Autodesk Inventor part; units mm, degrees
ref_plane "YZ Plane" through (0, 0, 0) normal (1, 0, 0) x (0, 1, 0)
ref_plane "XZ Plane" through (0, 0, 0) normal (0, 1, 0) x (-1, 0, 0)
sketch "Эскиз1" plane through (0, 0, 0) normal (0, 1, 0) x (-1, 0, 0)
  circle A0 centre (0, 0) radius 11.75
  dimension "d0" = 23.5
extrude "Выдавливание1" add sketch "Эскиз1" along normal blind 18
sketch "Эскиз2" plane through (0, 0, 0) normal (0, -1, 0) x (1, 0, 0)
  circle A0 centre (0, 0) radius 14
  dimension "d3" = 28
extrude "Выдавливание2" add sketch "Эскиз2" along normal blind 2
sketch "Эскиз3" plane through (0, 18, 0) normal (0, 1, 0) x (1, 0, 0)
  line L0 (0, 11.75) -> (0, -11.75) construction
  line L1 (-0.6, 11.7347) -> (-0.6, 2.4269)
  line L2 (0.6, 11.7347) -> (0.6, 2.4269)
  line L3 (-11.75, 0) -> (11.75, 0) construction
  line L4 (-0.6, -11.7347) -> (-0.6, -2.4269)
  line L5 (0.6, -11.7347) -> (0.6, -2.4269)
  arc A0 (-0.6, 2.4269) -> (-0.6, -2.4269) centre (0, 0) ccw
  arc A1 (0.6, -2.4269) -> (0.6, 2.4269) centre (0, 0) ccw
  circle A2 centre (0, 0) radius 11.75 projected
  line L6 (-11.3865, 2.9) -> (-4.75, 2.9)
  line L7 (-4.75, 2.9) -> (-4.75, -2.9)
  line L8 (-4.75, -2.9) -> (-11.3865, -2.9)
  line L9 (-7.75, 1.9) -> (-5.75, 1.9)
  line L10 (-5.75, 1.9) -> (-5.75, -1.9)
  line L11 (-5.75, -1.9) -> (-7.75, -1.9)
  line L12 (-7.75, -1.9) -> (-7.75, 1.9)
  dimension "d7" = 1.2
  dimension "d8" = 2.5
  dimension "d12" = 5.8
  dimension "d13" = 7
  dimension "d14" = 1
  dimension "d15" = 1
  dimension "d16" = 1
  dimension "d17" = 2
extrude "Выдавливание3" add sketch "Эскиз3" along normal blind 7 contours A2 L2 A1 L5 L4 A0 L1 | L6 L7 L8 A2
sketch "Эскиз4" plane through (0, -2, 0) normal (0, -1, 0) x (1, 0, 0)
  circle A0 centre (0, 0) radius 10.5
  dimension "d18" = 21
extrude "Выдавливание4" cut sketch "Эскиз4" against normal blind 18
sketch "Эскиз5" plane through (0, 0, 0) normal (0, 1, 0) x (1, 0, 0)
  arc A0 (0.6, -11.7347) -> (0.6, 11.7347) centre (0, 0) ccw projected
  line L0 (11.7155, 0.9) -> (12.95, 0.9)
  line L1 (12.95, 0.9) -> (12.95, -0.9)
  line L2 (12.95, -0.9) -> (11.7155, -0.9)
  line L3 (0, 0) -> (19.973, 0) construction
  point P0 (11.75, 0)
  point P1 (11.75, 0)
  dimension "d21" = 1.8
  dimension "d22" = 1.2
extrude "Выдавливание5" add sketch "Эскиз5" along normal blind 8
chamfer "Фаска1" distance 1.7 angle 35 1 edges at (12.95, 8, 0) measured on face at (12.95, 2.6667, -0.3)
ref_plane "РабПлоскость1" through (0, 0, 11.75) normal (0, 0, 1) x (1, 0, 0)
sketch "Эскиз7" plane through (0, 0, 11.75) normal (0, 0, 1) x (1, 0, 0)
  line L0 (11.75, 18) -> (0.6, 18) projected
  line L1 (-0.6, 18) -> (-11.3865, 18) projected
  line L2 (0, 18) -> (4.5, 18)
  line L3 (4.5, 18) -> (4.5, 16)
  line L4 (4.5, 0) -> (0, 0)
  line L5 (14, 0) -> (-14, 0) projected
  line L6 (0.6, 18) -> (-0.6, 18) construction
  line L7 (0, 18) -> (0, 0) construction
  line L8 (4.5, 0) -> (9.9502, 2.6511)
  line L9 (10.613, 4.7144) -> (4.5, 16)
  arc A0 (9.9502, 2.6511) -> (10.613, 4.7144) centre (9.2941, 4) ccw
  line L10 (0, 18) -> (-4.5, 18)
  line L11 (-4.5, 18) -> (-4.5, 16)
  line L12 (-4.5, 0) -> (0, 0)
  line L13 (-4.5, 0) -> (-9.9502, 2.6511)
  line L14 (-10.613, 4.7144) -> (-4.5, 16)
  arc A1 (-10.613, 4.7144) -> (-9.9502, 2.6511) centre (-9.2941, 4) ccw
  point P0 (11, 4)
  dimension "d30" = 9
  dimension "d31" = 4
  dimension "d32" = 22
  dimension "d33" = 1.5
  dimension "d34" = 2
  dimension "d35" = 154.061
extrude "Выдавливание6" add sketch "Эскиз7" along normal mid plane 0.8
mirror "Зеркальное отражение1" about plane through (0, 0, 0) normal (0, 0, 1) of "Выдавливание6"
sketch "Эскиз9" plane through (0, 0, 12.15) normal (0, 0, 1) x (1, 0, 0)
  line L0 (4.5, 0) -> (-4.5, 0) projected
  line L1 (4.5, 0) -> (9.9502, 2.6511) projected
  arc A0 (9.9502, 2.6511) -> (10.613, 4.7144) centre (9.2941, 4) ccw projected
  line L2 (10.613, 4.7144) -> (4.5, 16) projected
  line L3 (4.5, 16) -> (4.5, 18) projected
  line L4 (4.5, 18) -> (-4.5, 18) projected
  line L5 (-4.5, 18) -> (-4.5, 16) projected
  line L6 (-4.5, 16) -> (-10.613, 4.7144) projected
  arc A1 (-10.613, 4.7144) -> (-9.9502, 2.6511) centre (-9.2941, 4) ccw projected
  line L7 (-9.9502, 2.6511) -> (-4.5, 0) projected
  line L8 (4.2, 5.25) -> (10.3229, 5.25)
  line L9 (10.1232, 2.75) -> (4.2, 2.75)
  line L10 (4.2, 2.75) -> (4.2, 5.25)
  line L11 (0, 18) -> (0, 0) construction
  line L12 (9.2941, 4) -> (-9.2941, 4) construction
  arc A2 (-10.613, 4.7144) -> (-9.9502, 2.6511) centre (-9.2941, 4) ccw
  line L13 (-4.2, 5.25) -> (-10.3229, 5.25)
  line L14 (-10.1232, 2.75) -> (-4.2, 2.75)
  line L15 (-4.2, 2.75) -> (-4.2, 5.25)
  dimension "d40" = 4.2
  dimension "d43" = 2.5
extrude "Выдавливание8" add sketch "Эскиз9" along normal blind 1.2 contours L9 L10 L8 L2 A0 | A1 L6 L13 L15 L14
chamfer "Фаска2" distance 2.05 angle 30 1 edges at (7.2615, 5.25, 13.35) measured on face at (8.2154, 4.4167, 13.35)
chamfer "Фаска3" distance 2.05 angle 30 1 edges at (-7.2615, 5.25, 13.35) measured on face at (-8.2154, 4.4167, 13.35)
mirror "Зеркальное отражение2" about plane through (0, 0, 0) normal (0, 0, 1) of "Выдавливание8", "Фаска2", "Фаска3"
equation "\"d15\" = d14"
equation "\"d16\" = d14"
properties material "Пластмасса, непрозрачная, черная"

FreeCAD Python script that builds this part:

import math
import FreeCAD as App
import Part
import Sketcher

V = App.Vector
Q = App.Units.Quantity


def edges_at(feature, points):
    """Names of the edges that pass closest to the given points."""
    edges = feature.Shape.Edges
    near = lambda p: min(range(len(edges)), key=lambda i: edges[i].distToShape(Part.Vertex(*p))[0])
    return sorted({f"Edge{near(p) + 1}" for p in points})


def add_polygon(sketch, points):
    """Adds a closed chain of lines whose ends are joined by coincident constraints."""
    first, n = sketch.GeometryCount, len(points)
    for a, b in zip(points, points[1:] + points[:1]):
        sketch.addGeometry(Part.LineSegment(App.Vector(*a, 0), App.Vector(*b, 0)), False)
    for i in range(n):
        sketch.addConstraint(Sketcher.Constraint("Coincident", first + i, 2, first + (i + 1) % n, 1))

doc = App.newDocument("Part")
body = doc.addObject("PartDesign::Body", "Body")

sketch1 = body.newObject("Sketcher::SketchObject", "Sketch")
sketch1.AttachmentSupport = (doc.getObject("XZ_Plane"), [""])
sketch1.MapMode = "FlatFace"
sketch1.addGeometry(Part.Circle(V(0, 0, 0), V(0, 0, 1), 12), False)
sketch1.addConstraint(Sketcher.Constraint("Coincident", 0, 3, -1, 1))
sketch1.addConstraint(Sketcher.Constraint("Diameter", 0, 23.5))
pad1 = body.newObject("PartDesign::Pad", "Pad")
pad1.Profile = sketch1
pad1.Length = 18
pad1.Reversed = True

sketch2 = body.newObject("Sketcher::SketchObject", "Sketch001")
sketch2.AttachmentSupport = (doc.getObject("XZ_Plane"), [""])
sketch2.MapMode = "FlatFace"
sketch2.addGeometry(Part.Circle(V(0, 0, 0), V(0, 0, 1), 14), False)
sketch2.addConstraint(Sketcher.Constraint("Coincident", 0, 3, -1, 1))
sketch2.addConstraint(Sketcher.Constraint("Diameter", 0, 28.0))
pad2 = body.newObject("PartDesign::Pad", "Pad001")
pad2.Profile = sketch2
pad2.Length = 2

sketch3 = body.newObject("Sketcher::SketchObject", "Sketch002")
sketch3.AttachmentSupport = (doc.getObject("XZ_Plane"), [""])
sketch3.MapMode = "FlatFace"
sketch3.AttachmentOffset = App.Placement(V(0, 0, -18), App.Rotation())
sketch3.addGeometry(Part.ArcOfCircle(Part.Circle(V(0, 0, 0), V(0, 0, 1), 11.8), math.radians(-92.93), math.radians(-87.07)), False)
sketch3.addGeometry(Part.LineSegment(V(-0.6, -11.7, 0), V(-0.6, -2.4, 0)), False)
sketch3.addGeometry(Part.ArcOfCircle(Part.Circle(V(0, 0, 0), V(0, 0, 1), 2.5), math.radians(104), math.radians(256)), False)
sketch3.addGeometry(Part.LineSegment(V(-0.6, 2.4, 0), V(-0.6, 11.7, 0)), False)
sketch3.addGeometry(Part.ArcOfCircle(Part.Circle(V(0, 0, 0), V(0, 0, 1), 11.8), math.radians(87.07), math.radians(92.93)), False)
sketch3.addGeometry(Part.LineSegment(V(0.6, 11.7, 0), V(0.6, 2.4, 0)), False)
sketch3.addGeometry(Part.ArcOfCircle(Part.Circle(V(0, 0, 0), V(0, 0, 1), 2.5), math.radians(-76), math.radians(76)), False)
sketch3.addGeometry(Part.LineSegment(V(0.6, -2.4, 0), V(0.6, -11.7, 0)), False)
sketch3.addGeometry(Part.LineSegment(V(-4.8, -2.9, 0), V(-11.4, -2.9, 0)), False)
sketch3.addGeometry(Part.ArcOfCircle(Part.Circle(V(0, 0, 0), V(0, 0, 1), 11.8), math.radians(166), math.radians(194)), False)
sketch3.addGeometry(Part.LineSegment(V(-11.4, 2.9, 0), V(-4.8, 2.9, 0)), False)
sketch3.addGeometry(Part.LineSegment(V(-4.8, 2.9, 0), V(-4.8, -2.9, 0)), False)
add_polygon(sketch3, [(-7.8, 1.9), (-7.8, -1.9), (-5.8, -1.9), (-5.8, 1.9)])
sketch3.addConstraint(Sketcher.Constraint("Coincident", 0, 1, 1, 1))
sketch3.addConstraint(Sketcher.Constraint("Coincident", 1, 2, 2, 2))
sketch3.addConstraint(Sketcher.Constraint("Coincident", 2, 1, 3, 1))
sketch3.addConstraint(Sketcher.Constraint("Coincident", 3, 2, 4, 2))
sketch3.addConstraint(Sketcher.Constraint("Coincident", 4, 1, 5, 1))
sketch3.addConstraint(Sketcher.Constraint("Coincident", 5, 2, 6, 2))
sketch3.addConstraint(Sketcher.Constraint("Coincident", 6, 1, 7, 1))
sketch3.addConstraint(Sketcher.Constraint("Coincident", 7, 2, 0, 2))
sketch3.addConstraint(Sketcher.Constraint("Coincident", 8, 2, 9, 2))
sketch3.addConstraint(Sketcher.Constraint("Coincident", 9, 1, 10, 1))
sketch3.addConstraint(Sketcher.Constraint("Coincident", 10, 2, 11, 1))
sketch3.addConstraint(Sketcher.Constraint("Coincident", 11, 2, 8, 1))
sketch3.addConstraint(Sketcher.Constraint("Vertical", 1))
sketch3.addConstraint(Sketcher.Constraint("Vertical", 3))
sketch3.addConstraint(Sketcher.Constraint("Vertical", 5))
sketch3.addConstraint(Sketcher.Constraint("Vertical", 7))
sketch3.addConstraint(Sketcher.Constraint("Horizontal", 8))
sketch3.addConstraint(Sketcher.Constraint("Horizontal", 10))
sketch3.addConstraint(Sketcher.Constraint("Vertical", 11))
sketch3.addConstraint(Sketcher.Constraint("Vertical", 12))
sketch3.addConstraint(Sketcher.Constraint("Horizontal", 13))
sketch3.addConstraint(Sketcher.Constraint("Vertical", 14))
sketch3.addConstraint(Sketcher.Constraint("Horizontal", 15))
sketch3.addConstraint(Sketcher.Constraint("Coincident", 0, 3, -1, 1))
sketch3.addConstraint(Sketcher.Constraint("Coincident", 2, 3, -1, 1))
sketch3.addConstraint(Sketcher.Constraint("Coincident", 4, 3, -1, 1))
sketch3.addConstraint(Sketcher.Constraint("Coincident", 6, 3, -1, 1))
sketch3.addConstraint(Sketcher.Constraint("Coincident", 9, 3, -1, 1))
sketch3.addConstraint(Sketcher.Constraint("Equal", 0, 4))
sketch3.addConstraint(Sketcher.Constraint("Equal", 2, 6))
sketch3.addConstraint(Sketcher.Constraint("Equal", 4, 9))
sketch3.addConstraint(Sketcher.Constraint("Horizontal", 3, 2, 4, 1))
sketch3.addConstraint(Sketcher.Constraint("Horizontal", 1, 2, 6, 1))
sketch3.addConstraint(Sketcher.Constraint("Vertical", 1, 2, 2, 1))
sketch3.addConstraint(Sketcher.Constraint("Vertical", 8, 2, 9, 1))
sketch3.addConstraint(Sketcher.Constraint("Radius", 2, 2.5))
sketch3.addConstraint(Sketcher.Constraint("DistanceX", 13, 1, 13, 2, 2.0))
sketch3.addConstraint(Sketcher.Constraint("DistanceY", 11, 2, 11, 1, 5.8))
sketch3.addConstraint(Sketcher.Constraint("DistanceY", 11, 2, 12, 2, 1.0))
sketch3.addConstraint(Sketcher.Constraint("DistanceX", 13, 2, 11, 2, 1.0))
sketch3.addConstraint(Sketcher.Constraint("DistanceY", 14, 2, 10, 2, 1.0))
sketch3.addConstraint(Sketcher.Constraint("DistanceX", 3, 2, 4, 1, 1.2))
sketch3.addConstraint(Sketcher.Constraint("Radius", 0, 11.75))
sketch3.addConstraint(Sketcher.Constraint("DistanceX", 10, 2, -1, 1, 4.75))
pad3 = body.newObject("PartDesign::Pad", "Pad002")
pad3.Profile = sketch3
pad3.Length = 7
pad3.Reversed = True

sketch4 = body.newObject("Sketcher::SketchObject", "Sketch003")
sketch4.AttachmentSupport = (doc.getObject("XZ_Plane"), [""])
sketch4.MapMode = "FlatFace"
sketch4.AttachmentOffset = App.Placement(V(0, 0, 2), App.Rotation())
sketch4.addGeometry(Part.Circle(V(0, 0, 0), V(0, 0, 1), 10), False)
sketch4.addConstraint(Sketcher.Constraint("Coincident", 0, 3, -1, 1))
sketch4.addConstraint(Sketcher.Constraint("Diameter", 0, 21.0))
pocket1 = body.newObject("PartDesign::Pocket", "Pocket")
pocket1.Profile = sketch4
pocket1.Length = 18

sketch5 = body.newObject("Sketcher::SketchObject", "Sketch004")
sketch5.AttachmentSupport = (doc.getObject("XZ_Plane"), [""])
sketch5.MapMode = "FlatFace"
sketch5.addGeometry(Part.ArcOfCircle(Part.Circle(V(0, 0, 0), V(0, 0, 1), 11.8), math.radians(-4.39), math.radians(4.39)), False)
sketch5.addGeometry(Part.LineSegment(V(11.7, 0.9, 0), V(12.9, 0.9, 0)), False)
sketch5.addGeometry(Part.LineSegment(V(12.9, 0.9, 0), V(12.9, -0.9, 0)), False)
sketch5.addGeometry(Part.LineSegment(V(12.9, -0.9, 0), V(11.7, -0.9, 0)), False)
sketch5.addConstraint(Sketcher.Constraint("Coincident", 0, 2, 1, 1))
sketch5.addConstraint(Sketcher.Constraint("Coincident", 1, 2, 2, 1))
sketch5.addConstraint(Sketcher.Constraint("Coincident", 2, 2, 3, 1))
sketch5.addConstraint(Sketcher.Constraint("Coincident", 3, 2, 0, 1))
sketch5.addConstraint(Sketcher.Constraint("Horizontal", 1))
sketch5.addConstraint(Sketcher.Constraint("Vertical", 2))
sketch5.addConstraint(Sketcher.Constraint("Horizontal", 3))
sketch5.addConstraint(Sketcher.Constraint("Coincident", 0, 3, -1, 1))
sketch5.addConstraint(Sketcher.Constraint("Vertical", 0, 2, 3, 2))
sketch5.addConstraint(Sketcher.Constraint("DistanceY", 2, 2, 2, 1, 1.8))
sketch5.addConstraint(Sketcher.Constraint("Radius", 0, 11.75))
sketch5.addConstraint(Sketcher.Constraint("DistanceX", -1, 1, 1, 2, 12.95))
pad4 = body.newObject("PartDesign::Pad", "Pad003")
pad4.Profile = sketch5
pad4.Length = 8
pad4.Reversed = True
doc.recompute()

chamfer = body.newObject("PartDesign::Chamfer", "Chamfer")
chamfer.Base = (pad4, edges_at(pad4, [(12.95, 8, 0)]))
chamfer.ChamferType = "Distance and Angle"
chamfer.Size = 1.7
chamfer.Angle = 35
chamfer.FlipDirection = True

sketch6 = body.newObject("Sketcher::SketchObject", "Sketch005")
sketch6.AttachmentSupport = (doc.getObject("XY_Plane"), [""])
sketch6.MapMode = "FlatFace"
sketch6.AttachmentOffset = App.Placement(V(0, 0, 11.75), App.Rotation())
sketch6.addGeometry(Part.LineSegment(V(4.5, 16, 0), V(4.5, 18, 0)), False)
sketch6.addGeometry(Part.LineSegment(V(4.5, 18, 0), V(-4.5, 18, 0)), False)
sketch6.addGeometry(Part.LineSegment(V(-4.5, 18, 0), V(-4.5, 16, 0)), False)
sketch6.addGeometry(Part.LineSegment(V(-4.5, 16, 0), V(-10.6, 4.7, 0)), False)
sketch6.addGeometry(Part.ArcOfCircle(Part.Circle(V(-9.3, 4, 0), V(0, 0, 1), 1.5), math.radians(152), math.radians(244)), False)
sketch6.addGeometry(Part.LineSegment(V(-10, 2.7, 0), V(-4.5, 0, 0)), False)
sketch6.addGeometry(Part.LineSegment(V(-4.5, 0, 0), V(4.5, 0, 0)), False)
sketch6.addGeometry(Part.LineSegment(V(4.5, 0, 0), V(10, 2.7, 0)), False)
sketch6.addGeometry(Part.ArcOfCircle(Part.Circle(V(9.3, 4, 0), V(0, 0, 1), 1.5), math.radians(-64), math.radians(28)), False)
sketch6.addGeometry(Part.LineSegment(V(10.6, 4.7, 0), V(4.5, 16, 0)), False)
sketch6.addConstraint(Sketcher.Constraint("Coincident", 0, 2, 1, 1))
sketch6.addConstraint(Sketcher.Constraint("Coincident", 1, 2, 2, 1))
sketch6.addConstraint(Sketcher.Constraint("Coincident", 2, 2, 3, 1))
sketch6.addConstraint(Sketcher.Constraint("Tangent", 3, 2, 4, 1))
sketch6.addConstraint(Sketcher.Constraint("Tangent", 4, 2, 5, 1))
sketch6.addConstraint(Sketcher.Constraint("Coincident", 5, 2, 6, 1))
sketch6.addConstraint(Sketcher.Constraint("Coincident", 6, 2, 7, 1))
sketch6.addConstraint(Sketcher.Constraint("Tangent", 7, 2, 8, 1))
sketch6.addConstraint(Sketcher.Constraint("Tangent", 8, 2, 9, 1))
sketch6.addConstraint(Sketcher.Constraint("Coincident", 9, 2, 0, 1))
sketch6.addConstraint(Sketcher.Constraint("Vertical", 0))
sketch6.addConstraint(Sketcher.Constraint("Horizontal", 1))
sketch6.addConstraint(Sketcher.Constraint("Vertical", 2))
sketch6.addConstraint(Sketcher.Constraint("Horizontal", 6))
sketch6.addConstraint(Sketcher.Constraint("Equal", 4, 8))
sketch6.addConstraint(Sketcher.Constraint("Symmetric", 5, 2, 6, 2, -1, 1))
sketch6.addConstraint(Sketcher.Constraint("Symmetric", 4, 3, 8, 3, -2))
sketch6.addConstraint(Sketcher.Constraint("Symmetric", 2, 2, 9, 2, -2))
sketch6.addConstraint(Sketcher.Constraint("Vertical", 2, 2, 5, 2))
sketch6.addConstraint(Sketcher.Constraint("Radius", 4, 1.5))
sketch6.addConstraint(Sketcher.Constraint("DistanceX", 1, 2, 1, 1, 9.0))
sketch6.addConstraint(Sketcher.Constraint("DistanceY", 0, 1, 0, 2, 2.0))
sketch6.addConstraint(Sketcher.Constraint("DistanceY", -1, 1, 4, 3, 4.0))
sketch6.addConstraint(Sketcher.Constraint("DistanceY", -1, 1, 0, 2, 18.0))
sketch6.addConstraint(Sketcher.Constraint("Angle", 5, Q("-25.9393 deg")))
pad5 = body.newObject("PartDesign::Pad", "Pad004")
pad5.Profile = sketch6
pad5.Length = 0.8
pad5.Midplane = True
doc.recompute()

mirrored = body.newObject("PartDesign::Mirrored", "Mirrored")
mirrored.Originals = [pad5]
mirrored.MirrorPlane = (doc.getObject("XY_Plane"), [""])
body.Tip = mirrored

sketch7 = body.newObject("Sketcher::SketchObject", "Sketch006")
sketch7.AttachmentSupport = (doc.getObject("XY_Plane"), [""])
sketch7.MapMode = "FlatFace"
sketch7.AttachmentOffset = App.Placement(V(0, 0, 12.15), App.Rotation())
sketch7.addGeometry(Part.LineSegment(V(4.2, 2.75, 0), V(10.1232, 2.75, 0)), False)
sketch7.addGeometry(Part.ArcOfCircle(Part.Circle(V(9.2941, 4, 0), V(0, 0, 1), 1.499999), math.radians(-56.444479), math.radians(28.442789)), False)
sketch7.addGeometry(Part.LineSegment(V(10.613, 4.7144, 0), V(10.322888, 5.249994, 0)), False)
sketch7.addGeometry(Part.LineSegment(V(10.3229, 5.25, 0), V(4.2, 5.25, 0)), False)
sketch7.addGeometry(Part.LineSegment(V(4.2, 5.25, 0), V(4.2, 2.75, 0)), False)
sketch7.addGeometry(Part.ArcOfCircle(Part.Circle(V(-9.2941, 4, 0), V(0, 0, 1), 1.499955), math.radians(151.557211), math.radians(236.444479)), False)
sketch7.addGeometry(Part.LineSegment(V(-10.1232, 2.75, 0), V(-4.2, 2.75, 0)), False)
sketch7.addGeometry(Part.LineSegment(V(-4.2, 2.75, 0), V(-4.2, 5.25, 0)), False)
sketch7.addGeometry(Part.LineSegment(V(-4.2, 5.25, 0), V(-10.3229, 5.25, 0)), False)
sketch7.addGeometry(Part.LineSegment(V(-10.322888, 5.249994, 0), V(-10.613, 4.7144, 0)), False)
sketch7.addConstraint(Sketcher.Constraint("Coincident", 0, 2, 1, 1))
sketch7.addConstraint(Sketcher.Constraint("Coincident", 1, 2, 2, 1))
sketch7.addConstraint(Sketcher.Constraint("Coincident", 2, 2, 3, 1))
sketch7.addConstraint(Sketcher.Constraint("Coincident", 3, 2, 4, 1))
sketch7.addConstraint(Sketcher.Constraint("Coincident", 4, 2, 0, 1))
sketch7.addConstraint(Sketcher.Constraint("Coincident", 5, 2, 6, 1))
sketch7.addConstraint(Sketcher.Constraint("Coincident", 6, 2, 7, 1))
sketch7.addConstraint(Sketcher.Constraint("Coincident", 7, 2, 8, 1))
sketch7.addConstraint(Sketcher.Constraint("Coincident", 8, 2, 9, 1))
sketch7.addConstraint(Sketcher.Constraint("Coincident", 9, 2, 5, 1))
sketch7.addConstraint(Sketcher.Constraint("Horizontal", 0))
sketch7.addConstraint(Sketcher.Constraint("Horizontal", 3))
sketch7.addConstraint(Sketcher.Constraint("Vertical", 4))
sketch7.addConstraint(Sketcher.Constraint("Horizontal", 6))
sketch7.addConstraint(Sketcher.Constraint("Vertical", 7))
sketch7.addConstraint(Sketcher.Constraint("Horizontal", 8))
sketch7.addConstraint(Sketcher.Constraint("DistanceY", 4, 2, 4, 1, 2.5))
sketch7.addConstraint(Sketcher.Constraint("DistanceY", 7, 1, 7, 2, 2.5))
sketch7.addConstraint(Sketcher.Constraint("DistanceX", -1, 1, 3, 2, 4.2))
sketch7.addConstraint(Sketcher.Constraint("DistanceX", 6, 2, -1, 1, 4.2))
sketch7.addConstraint(Sketcher.Constraint("Radius", 1, 1.5))
sketch7.addConstraint(Sketcher.Constraint("Radius", 5, 1.5))
sketch7.addConstraint(Sketcher.Constraint("DistanceY", 5, 2, 3, 2, 2.5))
sketch7.addConstraint(Sketcher.Constraint("DistanceY", -1, 1, 1, 3, 4.0))
sketch7.addConstraint(Sketcher.Constraint("DistanceY", -1, 1, 5, 3, 4.0))
sketch7.addConstraint(Sketcher.Constraint("DistanceX", 3, 2, 3, 1, 6.123))
sketch7.addConstraint(Sketcher.Constraint("DistanceX", 8, 2, 8, 1, 6.123))
sketch7.addConstraint(Sketcher.Constraint("DistanceY", -1, 1, 0, 2, 2.75))
sketch7.addConstraint(Sketcher.Constraint("DistanceX", 9, 2, 8, 2, 0.29))
sketch7.addConstraint(Sketcher.Constraint("Distance", 2, 0.609))
sketch7.addConstraint(Sketcher.Constraint("Distance", 9, 0.609))
sketch7.addConstraint(Sketcher.Constraint("DistanceX", 0, 1, 0, 2, 5.9232))
pad6 = body.newObject("PartDesign::Pad", "Pad005")
pad6.Profile = sketch7
pad6.Length = 1.2
doc.recompute()

chamfer2 = body.newObject("PartDesign::Chamfer", "Chamfer001")
chamfer2.Base = (pad6, edges_at(pad6, [(7.261, 5.25, 13.35)]))
chamfer2.ChamferType = "Distance and Angle"
chamfer2.Size = 2.05
chamfer2.Angle = 30
chamfer2.FlipDirection = True
doc.recompute()

chamfer3 = body.newObject("PartDesign::Chamfer", "Chamfer002")
chamfer3.Base = (chamfer2, edges_at(chamfer2, [(-7.261, 5.25, 13.35)]))
chamfer3.ChamferType = "Distance and Angle"
chamfer3.Size = 2.05
chamfer3.Angle = 30
chamfer3.FlipDirection = True
doc.recompute()

mirrored2 = body.newObject("PartDesign::Mirrored", "Mirrored001")
mirrored2.Originals = [pad6, chamfer2, chamfer3]
mirrored2.MirrorPlane = (doc.getObject("XY_Plane"), [""])
body.Tip = mirrored2

doc.recompute()
